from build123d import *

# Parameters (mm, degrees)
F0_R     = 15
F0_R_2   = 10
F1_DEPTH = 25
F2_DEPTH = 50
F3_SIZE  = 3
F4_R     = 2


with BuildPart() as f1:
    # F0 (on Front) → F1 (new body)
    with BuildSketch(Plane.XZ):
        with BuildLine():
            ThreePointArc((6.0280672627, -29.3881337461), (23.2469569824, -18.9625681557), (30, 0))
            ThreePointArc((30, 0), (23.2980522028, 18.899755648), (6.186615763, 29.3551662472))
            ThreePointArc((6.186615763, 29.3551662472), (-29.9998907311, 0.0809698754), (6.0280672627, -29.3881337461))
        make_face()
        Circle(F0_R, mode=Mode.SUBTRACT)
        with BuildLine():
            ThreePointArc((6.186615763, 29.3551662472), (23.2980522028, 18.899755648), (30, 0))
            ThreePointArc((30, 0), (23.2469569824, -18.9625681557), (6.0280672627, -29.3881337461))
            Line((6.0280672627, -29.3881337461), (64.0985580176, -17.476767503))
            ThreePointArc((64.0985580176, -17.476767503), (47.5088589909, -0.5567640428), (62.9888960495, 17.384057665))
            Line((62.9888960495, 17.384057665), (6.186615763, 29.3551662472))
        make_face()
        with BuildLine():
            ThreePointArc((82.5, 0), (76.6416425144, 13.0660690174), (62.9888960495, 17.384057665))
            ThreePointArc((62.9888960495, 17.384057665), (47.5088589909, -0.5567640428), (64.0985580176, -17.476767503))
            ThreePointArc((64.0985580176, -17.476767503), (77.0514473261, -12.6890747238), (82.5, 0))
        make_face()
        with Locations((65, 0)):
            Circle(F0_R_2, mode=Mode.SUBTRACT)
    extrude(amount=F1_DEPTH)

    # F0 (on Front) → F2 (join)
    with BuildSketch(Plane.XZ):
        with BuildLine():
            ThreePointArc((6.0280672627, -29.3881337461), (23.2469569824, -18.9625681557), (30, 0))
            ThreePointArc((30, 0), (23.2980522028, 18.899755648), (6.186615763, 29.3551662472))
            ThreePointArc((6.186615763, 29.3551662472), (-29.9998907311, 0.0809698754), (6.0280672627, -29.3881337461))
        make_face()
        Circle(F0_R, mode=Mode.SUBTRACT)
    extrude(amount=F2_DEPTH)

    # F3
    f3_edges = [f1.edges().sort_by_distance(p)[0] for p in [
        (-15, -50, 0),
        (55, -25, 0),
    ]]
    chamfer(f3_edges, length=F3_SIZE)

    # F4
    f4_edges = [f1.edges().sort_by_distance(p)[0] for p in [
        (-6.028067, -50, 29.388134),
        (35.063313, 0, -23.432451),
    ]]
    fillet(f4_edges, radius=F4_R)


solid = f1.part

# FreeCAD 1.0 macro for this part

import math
import FreeCAD as App
import Part
import Sketcher

V = App.Vector


def edges_at(feature, points):
    """Names of the edges that pass closest to the given points."""
    edges = feature.Shape.Edges
    near = lambda p: min(range(len(edges)), key=lambda i: edges[i].distToShape(Part.Vertex(*p))[0])
    return sorted({f"Edge{near(p) + 1}" for p in points})

doc = App.newDocument("Part")
body = doc.addObject("PartDesign::Body", "Body")

# Sketch on XZ plane
sketch1 = body.newObject("Sketcher::SketchObject", "Sketch")
sketch1.AttachmentSupport = (doc.getObject("XZ_Plane"), [""])
sketch1.MapMode = "FlatFace"
sketch1.addGeometry(Part.ArcOfCircle(Part.Circle(V(0, 0, 0), V(0, 0, 1), 30), math.radians(78), math.radians(282)), False)
sketch1.addGeometry(Part.LineSegment(V(6, -29, 0), V(64, -17, 0)), False)
sketch1.addGeometry(Part.ArcOfCircle(Part.Circle(V(65, 0, 0), V(0, 0, 1), 18), math.radians(-93), math.radians(97)), False)
sketch1.addGeometry(Part.LineSegment(V(63, 17, 0), V(6, 29, 0)), False)
sketch1.addGeometry(Part.Circle(V(0, 0, 0), V(0, 0, 1), 15), False)
sketch1.addGeometry(Part.Circle(V(65, 0, 0), V(0, 0, 1), 10), False)
sketch1.addConstraint(Sketcher.Constraint("Tangent", 0, 2, 1, 1))
sketch1.addConstraint(Sketcher.Constraint("Coincident", 1, 2, 2, 1))
sketch1.addConstraint(Sketcher.Constraint("Coincident", 2, 2, 3, 1))
sketch1.addConstraint(Sketcher.Constraint("Tangent", 3, 2, 0, 1))
sketch1.addConstraint(Sketcher.Constraint("Coincident", 0, 3, -1, 1))
sketch1.addConstraint(Sketcher.Constraint("Coincident", 4, 3, -1, 1))
sketch1.addConstraint(Sketcher.Constraint("Coincident", 5, 3, 2, 3))
sketch1.addConstraint(Sketcher.Constraint("PointOnObject", 2, 3, -1))
sketch1.addConstraint(Sketcher.Constraint("Diameter", 4, 30.0))
sketch1.addConstraint(Sketcher.Constraint("Diameter", 5, 20.0))
sketch1.addConstraint(Sketcher.Constraint("Radius", 0, 30.0))
sketch1.addConstraint(Sketcher.Constraint("Radius", 2, 17.5))
sketch1.addConstraint(Sketcher.Constraint("DistanceX", -1, 1, 2, 3, 65.0))
sketch1.addConstraint(Sketcher.Constraint("DistanceY", 0, 2, 3, 2, 58.7433))
sketch1.addConstraint(Sketcher.Constraint("Distance", 1, 59.279529))
pad1 = body.newObject("PartDesign::Pad", "Pad")
pad1.Profile = sketch1
pad1.Length = 25

# Sketch on XZ plane
sketch2 = body.newObject("Sketcher::SketchObject", "Sketch001")
sketch2.AttachmentSupport = (doc.getObject("XZ_Plane"), [""])
sketch2.MapMode = "FlatFace"
sketch2.addGeometry(Part.ArcOfCircle(Part.Circle(V(0, 0, 0), V(0, 0, 1), 30), math.radians(-78), math.radians(0)), False)
sketch2.addGeometry(Part.ArcOfCircle(Part.Circle(V(0, 0, 0), V(0, 0, 1), 30), math.radians(0), math.radians(78)), False)
sketch2.addGeometry(Part.ArcOfCircle(Part.Circle(V(0, 0, 0), V(0, 0, 1), 30), math.radians(78), math.radians(282)), False)
sketch2.addGeometry(Part.Circle(V(0, 0, 0), V(0, 0, 1), 15), False)
sketch2.addConstraint(Sketcher.Constraint("Tangent", 0, 2, 1, 1))
sketch2.addConstraint(Sketcher.Constraint("Tangent", 1, 2, 2, 1))
sketch2.addConstraint(Sketcher.Constraint("Tangent", 2, 2, 0, 1))
sketch2.addConstraint(Sketcher.Constraint("Coincident", 0, 3, -1, 1))
sketch2.addConstraint(Sketcher.Constraint("Coincident", 3, 3, -1, 1))
sketch2.addConstraint(Sketcher.Constraint("PointOnObject", 0, 2, -1))
sketch2.addConstraint(Sketcher.Constraint("Diameter", 3, 30.0))
sketch2.addConstraint(Sketcher.Constraint("Radius", 0, 30.0))
sketch2.addConstraint(Sketcher.Constraint("DistanceX", -1, 1, 1, 2, 6.186616))
sketch2.addConstraint(Sketcher.Constraint("DistanceX", -1, 1, 2, 2, 6.028067))
pad2 = body.newObject("PartDesign::Pad", "Pad001")
pad2.Profile = sketch2
pad2.Length = 50
doc.recompute()

chamfer = body.newObject("PartDesign::Chamfer", "Chamfer")
chamfer.Base = (pad2, edges_at(pad2, [(-15, -50, 0), (55, -25, 0)]))
chamfer.Size = 3
doc.recompute()

fillet = body.newObject("PartDesign::Fillet", "Fillet")
fillet.Base = (chamfer, edges_at(chamfer, [(-30, -50, 0.081), (35.063, 0, -23.432)]))
fillet.Radius = 2

doc.recompute()
